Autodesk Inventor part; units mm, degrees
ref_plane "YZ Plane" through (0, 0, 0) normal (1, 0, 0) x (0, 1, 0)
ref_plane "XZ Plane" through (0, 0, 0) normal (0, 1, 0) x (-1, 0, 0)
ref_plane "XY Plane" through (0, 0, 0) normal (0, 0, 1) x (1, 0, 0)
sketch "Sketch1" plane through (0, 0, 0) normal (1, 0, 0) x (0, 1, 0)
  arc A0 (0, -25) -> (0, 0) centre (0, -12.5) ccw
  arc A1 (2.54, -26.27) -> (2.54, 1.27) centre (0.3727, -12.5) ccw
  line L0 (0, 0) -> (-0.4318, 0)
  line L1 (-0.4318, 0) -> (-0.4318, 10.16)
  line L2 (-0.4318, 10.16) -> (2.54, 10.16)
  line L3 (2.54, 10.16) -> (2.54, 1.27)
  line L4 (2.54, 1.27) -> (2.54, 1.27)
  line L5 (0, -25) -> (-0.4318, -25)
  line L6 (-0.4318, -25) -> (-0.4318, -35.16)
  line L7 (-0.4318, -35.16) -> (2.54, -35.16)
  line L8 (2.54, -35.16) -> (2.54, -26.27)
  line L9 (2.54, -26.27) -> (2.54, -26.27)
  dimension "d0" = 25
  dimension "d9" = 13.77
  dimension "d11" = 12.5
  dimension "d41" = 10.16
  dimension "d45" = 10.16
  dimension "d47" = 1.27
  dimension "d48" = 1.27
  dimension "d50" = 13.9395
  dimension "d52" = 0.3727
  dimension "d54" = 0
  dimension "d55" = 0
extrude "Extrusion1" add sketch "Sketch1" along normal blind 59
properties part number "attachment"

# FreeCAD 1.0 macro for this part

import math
import FreeCAD as App
import Part
import Sketcher
Q = App.Units.Quantity

doc = App.newDocument("Part")
body = doc.addObject("PartDesign::Body", "Body")

# Sketch on YZ plane
sketch1 = body.newObject("Sketcher::SketchObject", "Sketch")
sketch1.AttachmentSupport = (doc.getObject("YZ_Plane"), [""])
sketch1.MapMode = "FlatFace"
sketch1.addGeometry([
    Part.ArcOfCircle(Part.Circle(App.Vector(0, -12.5, 0), App.Vector(0, 0, 1), 12.5), math.radians(-90), math.radians(90)),  # 0
    Part.LineSegment(App.Vector(0, -25, 0), App.Vector(-0.4318, -25, 0)),  # 1
    Part.LineSegment(App.Vector(-0.4318, -25, 0), App.Vector(-0.4318, -35.16, 0)),  # 2
    Part.LineSegment(App.Vector(-0.4318, -35.16, 0), App.Vector(2.54, -35.16, 0)),  # 3
    Part.LineSegment(App.Vector(2.54, -35.16, 0), App.Vector(2.54, -26.27, 0)),  # 4
    Part.ArcOfCircle(Part.Circle(App.Vector(0.3727, -12.5, 0), App.Vector(0, 0, 1), 13.939515), math.radians(-81.05543), math.radians(81.05543)),  # 5
    Part.LineSegment(App.Vector(2.54, 1.27, 0), App.Vector(2.54, 10.16, 0)),  # 6
    Part.LineSegment(App.Vector(2.54, 10.16, 0), App.Vector(-0.4318, 10.16, 0)),  # 7
    Part.LineSegment(App.Vector(-0.4318, 10.16, 0), App.Vector(-0.4318, 0, 0)),  # 8
    Part.LineSegment(App.Vector(-0.4318, 0, 0), App.Vector(0, 0, 0)),  # 9
], False)
sketch1.addConstraint([
    Sketcher.Constraint("Tangent", 0, 1, 1, 1),
    Sketcher.Constraint("Coincident", 1, 2, 2, 1),
    Sketcher.Constraint("Coincident", 2, 2, 3, 1),
    Sketcher.Constraint("Coincident", 3, 2, 4, 1),
    Sketcher.Constraint("Coincident", 4, 2, 5, 1),
    Sketcher.Constraint("Coincident", 5, 2, 6, 1),
    Sketcher.Constraint("Coincident", 6, 2, 7, 1),
    Sketcher.Constraint("Coincident", 7, 2, 8, 1),
    Sketcher.Constraint("Coincident", 8, 2, 9, 1),
    Sketcher.Constraint("Tangent", 9, 2, 0, 2),
    Sketcher.Constraint("Horizontal", 1),
    Sketcher.Constraint("Vertical", 2),
    Sketcher.Constraint("Horizontal", 3),
    Sketcher.Constraint("Vertical", 4),
    Sketcher.Constraint("Vertical", 6),
    Sketcher.Constraint("Horizontal", 7),
    Sketcher.Constraint("Vertical", 8),
    Sketcher.Constraint("Horizontal", 9),
    Sketcher.Constraint("Coincident", 9, 2, -1, 1),
    Sketcher.Constraint("Horizontal", 0, 3, 5, 3),
    Sketcher.Constraint("Vertical", 4, 2, 5, 2),
    Sketcher.Constraint("Vertical", 2, 2, 7, 2),
    Sketcher.Constraint("Equal", 4, 6),
    Sketcher.Constraint("DistanceY", 2, 2, 2, 1, Q("0.4 in")),
    Sketcher.Constraint("Radius", 5, Q("0.5488 in")),
    Sketcher.Constraint("DistanceY", -1, 1, 5, 2, Q("0.05 in")),
    Sketcher.Constraint("Radius", 0, 12.5),
    Sketcher.Constraint("DistanceX", -1, 1, 3, 2, Q("0.1 in")),
    Sketcher.Constraint("DistanceX", 1, 2, 1, 1, Q("0.017 in")),
])
pad1 = body.newObject("PartDesign::Pad", "Pad")
pad1.Profile = sketch1
pad1.Length = 59

doc.recompute()
